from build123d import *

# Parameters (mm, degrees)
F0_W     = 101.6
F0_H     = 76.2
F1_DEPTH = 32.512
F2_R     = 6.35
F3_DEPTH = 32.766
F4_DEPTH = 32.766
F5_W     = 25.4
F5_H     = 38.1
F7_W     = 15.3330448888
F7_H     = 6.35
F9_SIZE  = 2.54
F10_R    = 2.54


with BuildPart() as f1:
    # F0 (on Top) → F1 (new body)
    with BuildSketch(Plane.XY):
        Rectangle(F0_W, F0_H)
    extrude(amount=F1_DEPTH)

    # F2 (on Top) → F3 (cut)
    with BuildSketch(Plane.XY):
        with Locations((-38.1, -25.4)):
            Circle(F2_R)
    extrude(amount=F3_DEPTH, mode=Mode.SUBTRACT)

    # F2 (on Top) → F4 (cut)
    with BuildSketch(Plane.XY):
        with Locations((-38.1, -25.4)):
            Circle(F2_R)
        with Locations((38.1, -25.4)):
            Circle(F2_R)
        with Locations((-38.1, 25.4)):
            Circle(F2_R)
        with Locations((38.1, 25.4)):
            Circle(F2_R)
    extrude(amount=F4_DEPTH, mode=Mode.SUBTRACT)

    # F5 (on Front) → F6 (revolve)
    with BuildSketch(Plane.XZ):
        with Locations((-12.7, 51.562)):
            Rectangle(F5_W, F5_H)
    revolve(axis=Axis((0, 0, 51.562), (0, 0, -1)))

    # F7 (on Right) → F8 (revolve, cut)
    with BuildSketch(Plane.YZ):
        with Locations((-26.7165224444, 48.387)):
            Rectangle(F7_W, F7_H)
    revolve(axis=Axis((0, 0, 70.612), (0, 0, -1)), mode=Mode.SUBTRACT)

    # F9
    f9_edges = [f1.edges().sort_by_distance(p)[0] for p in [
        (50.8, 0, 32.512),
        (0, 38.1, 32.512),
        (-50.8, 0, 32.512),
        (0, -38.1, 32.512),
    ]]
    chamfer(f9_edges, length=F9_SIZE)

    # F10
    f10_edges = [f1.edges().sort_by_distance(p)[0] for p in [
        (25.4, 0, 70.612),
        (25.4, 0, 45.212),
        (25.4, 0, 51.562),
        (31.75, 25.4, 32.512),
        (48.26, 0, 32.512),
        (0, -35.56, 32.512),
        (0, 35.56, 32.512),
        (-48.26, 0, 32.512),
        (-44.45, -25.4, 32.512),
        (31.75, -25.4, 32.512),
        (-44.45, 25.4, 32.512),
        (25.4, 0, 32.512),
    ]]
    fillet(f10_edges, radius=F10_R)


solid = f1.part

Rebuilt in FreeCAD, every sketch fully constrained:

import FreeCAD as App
import Part
import Sketcher
from FreeCAD import Vector
Q = App.Units.Quantity


def edges_at(feature, points):
    """Names of the edges that pass closest to the given points."""
    edges = feature.Shape.Edges
    near = lambda p: min(range(len(edges)), key=lambda i: edges[i].distToShape(Part.Vertex(*p))[0])
    return sorted({f"Edge{near(p) + 1}" for p in points})


def add_polygon(sketch, points):
    """Adds a closed chain of lines whose ends are joined by coincident constraints."""
    first, n = sketch.GeometryCount, len(points)
    for a, b in zip(points, points[1:] + points[:1]):
        sketch.addGeometry(Part.LineSegment(App.Vector(*a, 0), App.Vector(*b, 0)), False)
    for i in range(n):
        sketch.addConstraint(Sketcher.Constraint("Coincident", first + i, 2, first + (i + 1) % n, 1))

doc = App.newDocument("Part")
body = doc.addObject("PartDesign::Body", "Body")

# Sketch on XY plane
sketch1 = body.newObject("Sketcher::SketchObject", "Sketch")
sketch1.AttachmentSupport = (doc.getObject("XY_Plane"), [""])
sketch1.MapMode = "FlatFace"
add_polygon(sketch1, [(-51, 38), (-51, -38), (51, -38), (51, 38)])  # lines 0-3
sketch1.addConstraint([
    Sketcher.Constraint("Vertical", 0),
    Sketcher.Constraint("Horizontal", 1),
    Sketcher.Constraint("Vertical", 2),
    Sketcher.Constraint("Horizontal", 3),
    Sketcher.Constraint("Symmetric", 0, 2, 2, 2, -1, 1),
    Sketcher.Constraint("DistanceX", 1, 1, 1, 2, Q("4 in")),
    Sketcher.Constraint("DistanceY", 0, 2, 0, 1, Q("3 in")),
])
pad1 = body.newObject("PartDesign::Pad", "Pad")
pad1.Profile = sketch1
pad1.Length = Q("1.28 in")

# Sketch on XY plane
sketch2 = body.newObject("Sketcher::SketchObject", "Sketch001")
sketch2.AttachmentSupport = (doc.getObject("XY_Plane"), [""])
sketch2.MapMode = "FlatFace"
sketch2.addGeometry(Part.Circle(Vector(-38, -25, 0), Vector(0, 0, 1), 6), False)
sketch2.addConstraint([
    Sketcher.Constraint("Diameter", 0, Q("0.5 in")),
    Sketcher.Constraint("DistanceY", 0, 3, -1, 1, Q("1 in")),
    Sketcher.Constraint("DistanceX", 0, 3, -1, 1, Q("1.5 in")),
])
pocket1 = body.newObject("PartDesign::Pocket", "Pocket")
pocket1.Profile = sketch2
pocket1.Length = Q("1.29 in")
pocket1.Reversed = True

# Sketch on XY plane
sketch3 = body.newObject("Sketcher::SketchObject", "Sketch002")
sketch3.AttachmentSupport = (doc.getObject("XY_Plane"), [""])
sketch3.MapMode = "FlatFace"
sketch3.addGeometry([
    Part.Circle(Vector(-38, -25, 0), Vector(0, 0, 1), 6),
    Part.Circle(Vector(38, -25, 0), Vector(0, 0, 1), 6),
    Part.Circle(Vector(-38, 25, 0), Vector(0, 0, 1), 6),
    Part.Circle(Vector(38, 25, 0), Vector(0, 0, 1), 6),
], False)
sketch3.addConstraint([
    Sketcher.Constraint("Equal", 0, 1),
    Sketcher.Constraint("Equal", 1, 2),
    Sketcher.Constraint("Equal", 2, 3),
    Sketcher.Constraint("Symmetric", 1, 3, 2, 3, -1, 1),
    Sketcher.Constraint("Symmetric", 0, 3, 3, 3, -1, 1),
    Sketcher.Constraint("Symmetric", 0, 3, 1, 3, -2),
    Sketcher.Constraint("Diameter", 0, Q("0.5 in")),
    Sketcher.Constraint("DistanceY", 0, 3, -1, 1, Q("1 in")),
    Sketcher.Constraint("DistanceX", 0, 3, 1, 3, Q("3 in")),
])
pocket2 = body.newObject("PartDesign::Pocket", "Pocket001")
pocket2.Profile = sketch3
pocket2.Length = Q("1.29 in")
pocket2.Reversed = True

# Sketch on XZ plane
sketch4 = body.newObject("Sketcher::SketchObject", "Sketch003")
sketch4.AttachmentSupport = (doc.getObject("XZ_Plane"), [""])
sketch4.MapMode = "FlatFace"
add_polygon(sketch4, [(-25, 71), (-25, 33), (0, 33), (0, 71)])  # lines 0-3
sketch4.addConstraint([
    Sketcher.Constraint("Vertical", 0),
    Sketcher.Constraint("Horizontal", 1),
    Sketcher.Constraint("Vertical", 2),
    Sketcher.Constraint("Horizontal", 3),
    Sketcher.Constraint("PointOnObject", 1, 2, -2),
    Sketcher.Constraint("DistanceX", 1, 1, 1, 2, Q("1 in")),
    Sketcher.Constraint("DistanceY", 0, 2, 0, 1, Q("1.5 in")),
    Sketcher.Constraint("DistanceY", -1, 1, 0, 2, Q("1.28 in")),
])
revolution = body.newObject("PartDesign::Revolution", "Revolution")
revolution.Profile = sketch4
revolution.ReferenceAxis = (sketch4, ["V_Axis"])
revolution.Angle = 360

# Sketch on YZ plane
sketch5 = body.newObject("Sketcher::SketchObject", "Sketch004")
sketch5.AttachmentSupport = (doc.getObject("YZ_Plane"), [""])
sketch5.MapMode = "FlatFace"
add_polygon(sketch5, [(-34, 52), (-34, 45), (-19, 45), (-19, 52)])  # lines 0-3
sketch5.addConstraint([
    Sketcher.Constraint("Vertical", 0),
    Sketcher.Constraint("Horizontal", 1),
    Sketcher.Constraint("Vertical", 2),
    Sketcher.Constraint("Horizontal", 3),
    Sketcher.Constraint("DistanceY", 0, 2, 0, 1, Q("0.25 in")),
    Sketcher.Constraint("DistanceY", -1, 1, 0, 2, Q("1.78 in")),
    Sketcher.Constraint("DistanceX", 1, 2, -1, 1, Q("0.75 in")),
    Sketcher.Constraint("DistanceX", 1, 1, 1, 2, Q("15.333045 mm")),
])
groove = body.newObject("PartDesign::Groove", "Groove")
groove.Profile = sketch5
groove.ReferenceAxis = (sketch5, ["V_Axis"])
groove.Angle = 360
doc.recompute()

chamfer = body.newObject("PartDesign::Chamfer", "Chamfer")
chamfer.Base = (groove, edges_at(groove, [
    (50.8, 0, 32.512),
    (0, 38.1, 32.512),
    (-50.8, 0, 32.512),
    (0, -38.1, 32.512),
]))
chamfer.Size = Q("0.1 in")
doc.recompute()

fillet = body.newObject("PartDesign::Fillet", "Fillet")
fillet.Base = (chamfer, edges_at(chamfer, [
    (25.4, 0, 70.612),
    (25.4, 0, 45.212),
    (25.4, 0, 51.562),
    (31.75, 25.4, 32.512),
    (48.26, 0, 32.512),
    (0, -35.56, 32.512),
    (0, 35.56, 32.512),
    (-48.26, 0, 32.512),
    (-44.45, -25.4, 32.512),
    (31.75, -25.4, 32.512),
    (-44.45, 25.4, 32.512),
    (25.4, 0, 32.512),
]))
fillet.Radius = Q("0.1 in")

doc.recompute()
